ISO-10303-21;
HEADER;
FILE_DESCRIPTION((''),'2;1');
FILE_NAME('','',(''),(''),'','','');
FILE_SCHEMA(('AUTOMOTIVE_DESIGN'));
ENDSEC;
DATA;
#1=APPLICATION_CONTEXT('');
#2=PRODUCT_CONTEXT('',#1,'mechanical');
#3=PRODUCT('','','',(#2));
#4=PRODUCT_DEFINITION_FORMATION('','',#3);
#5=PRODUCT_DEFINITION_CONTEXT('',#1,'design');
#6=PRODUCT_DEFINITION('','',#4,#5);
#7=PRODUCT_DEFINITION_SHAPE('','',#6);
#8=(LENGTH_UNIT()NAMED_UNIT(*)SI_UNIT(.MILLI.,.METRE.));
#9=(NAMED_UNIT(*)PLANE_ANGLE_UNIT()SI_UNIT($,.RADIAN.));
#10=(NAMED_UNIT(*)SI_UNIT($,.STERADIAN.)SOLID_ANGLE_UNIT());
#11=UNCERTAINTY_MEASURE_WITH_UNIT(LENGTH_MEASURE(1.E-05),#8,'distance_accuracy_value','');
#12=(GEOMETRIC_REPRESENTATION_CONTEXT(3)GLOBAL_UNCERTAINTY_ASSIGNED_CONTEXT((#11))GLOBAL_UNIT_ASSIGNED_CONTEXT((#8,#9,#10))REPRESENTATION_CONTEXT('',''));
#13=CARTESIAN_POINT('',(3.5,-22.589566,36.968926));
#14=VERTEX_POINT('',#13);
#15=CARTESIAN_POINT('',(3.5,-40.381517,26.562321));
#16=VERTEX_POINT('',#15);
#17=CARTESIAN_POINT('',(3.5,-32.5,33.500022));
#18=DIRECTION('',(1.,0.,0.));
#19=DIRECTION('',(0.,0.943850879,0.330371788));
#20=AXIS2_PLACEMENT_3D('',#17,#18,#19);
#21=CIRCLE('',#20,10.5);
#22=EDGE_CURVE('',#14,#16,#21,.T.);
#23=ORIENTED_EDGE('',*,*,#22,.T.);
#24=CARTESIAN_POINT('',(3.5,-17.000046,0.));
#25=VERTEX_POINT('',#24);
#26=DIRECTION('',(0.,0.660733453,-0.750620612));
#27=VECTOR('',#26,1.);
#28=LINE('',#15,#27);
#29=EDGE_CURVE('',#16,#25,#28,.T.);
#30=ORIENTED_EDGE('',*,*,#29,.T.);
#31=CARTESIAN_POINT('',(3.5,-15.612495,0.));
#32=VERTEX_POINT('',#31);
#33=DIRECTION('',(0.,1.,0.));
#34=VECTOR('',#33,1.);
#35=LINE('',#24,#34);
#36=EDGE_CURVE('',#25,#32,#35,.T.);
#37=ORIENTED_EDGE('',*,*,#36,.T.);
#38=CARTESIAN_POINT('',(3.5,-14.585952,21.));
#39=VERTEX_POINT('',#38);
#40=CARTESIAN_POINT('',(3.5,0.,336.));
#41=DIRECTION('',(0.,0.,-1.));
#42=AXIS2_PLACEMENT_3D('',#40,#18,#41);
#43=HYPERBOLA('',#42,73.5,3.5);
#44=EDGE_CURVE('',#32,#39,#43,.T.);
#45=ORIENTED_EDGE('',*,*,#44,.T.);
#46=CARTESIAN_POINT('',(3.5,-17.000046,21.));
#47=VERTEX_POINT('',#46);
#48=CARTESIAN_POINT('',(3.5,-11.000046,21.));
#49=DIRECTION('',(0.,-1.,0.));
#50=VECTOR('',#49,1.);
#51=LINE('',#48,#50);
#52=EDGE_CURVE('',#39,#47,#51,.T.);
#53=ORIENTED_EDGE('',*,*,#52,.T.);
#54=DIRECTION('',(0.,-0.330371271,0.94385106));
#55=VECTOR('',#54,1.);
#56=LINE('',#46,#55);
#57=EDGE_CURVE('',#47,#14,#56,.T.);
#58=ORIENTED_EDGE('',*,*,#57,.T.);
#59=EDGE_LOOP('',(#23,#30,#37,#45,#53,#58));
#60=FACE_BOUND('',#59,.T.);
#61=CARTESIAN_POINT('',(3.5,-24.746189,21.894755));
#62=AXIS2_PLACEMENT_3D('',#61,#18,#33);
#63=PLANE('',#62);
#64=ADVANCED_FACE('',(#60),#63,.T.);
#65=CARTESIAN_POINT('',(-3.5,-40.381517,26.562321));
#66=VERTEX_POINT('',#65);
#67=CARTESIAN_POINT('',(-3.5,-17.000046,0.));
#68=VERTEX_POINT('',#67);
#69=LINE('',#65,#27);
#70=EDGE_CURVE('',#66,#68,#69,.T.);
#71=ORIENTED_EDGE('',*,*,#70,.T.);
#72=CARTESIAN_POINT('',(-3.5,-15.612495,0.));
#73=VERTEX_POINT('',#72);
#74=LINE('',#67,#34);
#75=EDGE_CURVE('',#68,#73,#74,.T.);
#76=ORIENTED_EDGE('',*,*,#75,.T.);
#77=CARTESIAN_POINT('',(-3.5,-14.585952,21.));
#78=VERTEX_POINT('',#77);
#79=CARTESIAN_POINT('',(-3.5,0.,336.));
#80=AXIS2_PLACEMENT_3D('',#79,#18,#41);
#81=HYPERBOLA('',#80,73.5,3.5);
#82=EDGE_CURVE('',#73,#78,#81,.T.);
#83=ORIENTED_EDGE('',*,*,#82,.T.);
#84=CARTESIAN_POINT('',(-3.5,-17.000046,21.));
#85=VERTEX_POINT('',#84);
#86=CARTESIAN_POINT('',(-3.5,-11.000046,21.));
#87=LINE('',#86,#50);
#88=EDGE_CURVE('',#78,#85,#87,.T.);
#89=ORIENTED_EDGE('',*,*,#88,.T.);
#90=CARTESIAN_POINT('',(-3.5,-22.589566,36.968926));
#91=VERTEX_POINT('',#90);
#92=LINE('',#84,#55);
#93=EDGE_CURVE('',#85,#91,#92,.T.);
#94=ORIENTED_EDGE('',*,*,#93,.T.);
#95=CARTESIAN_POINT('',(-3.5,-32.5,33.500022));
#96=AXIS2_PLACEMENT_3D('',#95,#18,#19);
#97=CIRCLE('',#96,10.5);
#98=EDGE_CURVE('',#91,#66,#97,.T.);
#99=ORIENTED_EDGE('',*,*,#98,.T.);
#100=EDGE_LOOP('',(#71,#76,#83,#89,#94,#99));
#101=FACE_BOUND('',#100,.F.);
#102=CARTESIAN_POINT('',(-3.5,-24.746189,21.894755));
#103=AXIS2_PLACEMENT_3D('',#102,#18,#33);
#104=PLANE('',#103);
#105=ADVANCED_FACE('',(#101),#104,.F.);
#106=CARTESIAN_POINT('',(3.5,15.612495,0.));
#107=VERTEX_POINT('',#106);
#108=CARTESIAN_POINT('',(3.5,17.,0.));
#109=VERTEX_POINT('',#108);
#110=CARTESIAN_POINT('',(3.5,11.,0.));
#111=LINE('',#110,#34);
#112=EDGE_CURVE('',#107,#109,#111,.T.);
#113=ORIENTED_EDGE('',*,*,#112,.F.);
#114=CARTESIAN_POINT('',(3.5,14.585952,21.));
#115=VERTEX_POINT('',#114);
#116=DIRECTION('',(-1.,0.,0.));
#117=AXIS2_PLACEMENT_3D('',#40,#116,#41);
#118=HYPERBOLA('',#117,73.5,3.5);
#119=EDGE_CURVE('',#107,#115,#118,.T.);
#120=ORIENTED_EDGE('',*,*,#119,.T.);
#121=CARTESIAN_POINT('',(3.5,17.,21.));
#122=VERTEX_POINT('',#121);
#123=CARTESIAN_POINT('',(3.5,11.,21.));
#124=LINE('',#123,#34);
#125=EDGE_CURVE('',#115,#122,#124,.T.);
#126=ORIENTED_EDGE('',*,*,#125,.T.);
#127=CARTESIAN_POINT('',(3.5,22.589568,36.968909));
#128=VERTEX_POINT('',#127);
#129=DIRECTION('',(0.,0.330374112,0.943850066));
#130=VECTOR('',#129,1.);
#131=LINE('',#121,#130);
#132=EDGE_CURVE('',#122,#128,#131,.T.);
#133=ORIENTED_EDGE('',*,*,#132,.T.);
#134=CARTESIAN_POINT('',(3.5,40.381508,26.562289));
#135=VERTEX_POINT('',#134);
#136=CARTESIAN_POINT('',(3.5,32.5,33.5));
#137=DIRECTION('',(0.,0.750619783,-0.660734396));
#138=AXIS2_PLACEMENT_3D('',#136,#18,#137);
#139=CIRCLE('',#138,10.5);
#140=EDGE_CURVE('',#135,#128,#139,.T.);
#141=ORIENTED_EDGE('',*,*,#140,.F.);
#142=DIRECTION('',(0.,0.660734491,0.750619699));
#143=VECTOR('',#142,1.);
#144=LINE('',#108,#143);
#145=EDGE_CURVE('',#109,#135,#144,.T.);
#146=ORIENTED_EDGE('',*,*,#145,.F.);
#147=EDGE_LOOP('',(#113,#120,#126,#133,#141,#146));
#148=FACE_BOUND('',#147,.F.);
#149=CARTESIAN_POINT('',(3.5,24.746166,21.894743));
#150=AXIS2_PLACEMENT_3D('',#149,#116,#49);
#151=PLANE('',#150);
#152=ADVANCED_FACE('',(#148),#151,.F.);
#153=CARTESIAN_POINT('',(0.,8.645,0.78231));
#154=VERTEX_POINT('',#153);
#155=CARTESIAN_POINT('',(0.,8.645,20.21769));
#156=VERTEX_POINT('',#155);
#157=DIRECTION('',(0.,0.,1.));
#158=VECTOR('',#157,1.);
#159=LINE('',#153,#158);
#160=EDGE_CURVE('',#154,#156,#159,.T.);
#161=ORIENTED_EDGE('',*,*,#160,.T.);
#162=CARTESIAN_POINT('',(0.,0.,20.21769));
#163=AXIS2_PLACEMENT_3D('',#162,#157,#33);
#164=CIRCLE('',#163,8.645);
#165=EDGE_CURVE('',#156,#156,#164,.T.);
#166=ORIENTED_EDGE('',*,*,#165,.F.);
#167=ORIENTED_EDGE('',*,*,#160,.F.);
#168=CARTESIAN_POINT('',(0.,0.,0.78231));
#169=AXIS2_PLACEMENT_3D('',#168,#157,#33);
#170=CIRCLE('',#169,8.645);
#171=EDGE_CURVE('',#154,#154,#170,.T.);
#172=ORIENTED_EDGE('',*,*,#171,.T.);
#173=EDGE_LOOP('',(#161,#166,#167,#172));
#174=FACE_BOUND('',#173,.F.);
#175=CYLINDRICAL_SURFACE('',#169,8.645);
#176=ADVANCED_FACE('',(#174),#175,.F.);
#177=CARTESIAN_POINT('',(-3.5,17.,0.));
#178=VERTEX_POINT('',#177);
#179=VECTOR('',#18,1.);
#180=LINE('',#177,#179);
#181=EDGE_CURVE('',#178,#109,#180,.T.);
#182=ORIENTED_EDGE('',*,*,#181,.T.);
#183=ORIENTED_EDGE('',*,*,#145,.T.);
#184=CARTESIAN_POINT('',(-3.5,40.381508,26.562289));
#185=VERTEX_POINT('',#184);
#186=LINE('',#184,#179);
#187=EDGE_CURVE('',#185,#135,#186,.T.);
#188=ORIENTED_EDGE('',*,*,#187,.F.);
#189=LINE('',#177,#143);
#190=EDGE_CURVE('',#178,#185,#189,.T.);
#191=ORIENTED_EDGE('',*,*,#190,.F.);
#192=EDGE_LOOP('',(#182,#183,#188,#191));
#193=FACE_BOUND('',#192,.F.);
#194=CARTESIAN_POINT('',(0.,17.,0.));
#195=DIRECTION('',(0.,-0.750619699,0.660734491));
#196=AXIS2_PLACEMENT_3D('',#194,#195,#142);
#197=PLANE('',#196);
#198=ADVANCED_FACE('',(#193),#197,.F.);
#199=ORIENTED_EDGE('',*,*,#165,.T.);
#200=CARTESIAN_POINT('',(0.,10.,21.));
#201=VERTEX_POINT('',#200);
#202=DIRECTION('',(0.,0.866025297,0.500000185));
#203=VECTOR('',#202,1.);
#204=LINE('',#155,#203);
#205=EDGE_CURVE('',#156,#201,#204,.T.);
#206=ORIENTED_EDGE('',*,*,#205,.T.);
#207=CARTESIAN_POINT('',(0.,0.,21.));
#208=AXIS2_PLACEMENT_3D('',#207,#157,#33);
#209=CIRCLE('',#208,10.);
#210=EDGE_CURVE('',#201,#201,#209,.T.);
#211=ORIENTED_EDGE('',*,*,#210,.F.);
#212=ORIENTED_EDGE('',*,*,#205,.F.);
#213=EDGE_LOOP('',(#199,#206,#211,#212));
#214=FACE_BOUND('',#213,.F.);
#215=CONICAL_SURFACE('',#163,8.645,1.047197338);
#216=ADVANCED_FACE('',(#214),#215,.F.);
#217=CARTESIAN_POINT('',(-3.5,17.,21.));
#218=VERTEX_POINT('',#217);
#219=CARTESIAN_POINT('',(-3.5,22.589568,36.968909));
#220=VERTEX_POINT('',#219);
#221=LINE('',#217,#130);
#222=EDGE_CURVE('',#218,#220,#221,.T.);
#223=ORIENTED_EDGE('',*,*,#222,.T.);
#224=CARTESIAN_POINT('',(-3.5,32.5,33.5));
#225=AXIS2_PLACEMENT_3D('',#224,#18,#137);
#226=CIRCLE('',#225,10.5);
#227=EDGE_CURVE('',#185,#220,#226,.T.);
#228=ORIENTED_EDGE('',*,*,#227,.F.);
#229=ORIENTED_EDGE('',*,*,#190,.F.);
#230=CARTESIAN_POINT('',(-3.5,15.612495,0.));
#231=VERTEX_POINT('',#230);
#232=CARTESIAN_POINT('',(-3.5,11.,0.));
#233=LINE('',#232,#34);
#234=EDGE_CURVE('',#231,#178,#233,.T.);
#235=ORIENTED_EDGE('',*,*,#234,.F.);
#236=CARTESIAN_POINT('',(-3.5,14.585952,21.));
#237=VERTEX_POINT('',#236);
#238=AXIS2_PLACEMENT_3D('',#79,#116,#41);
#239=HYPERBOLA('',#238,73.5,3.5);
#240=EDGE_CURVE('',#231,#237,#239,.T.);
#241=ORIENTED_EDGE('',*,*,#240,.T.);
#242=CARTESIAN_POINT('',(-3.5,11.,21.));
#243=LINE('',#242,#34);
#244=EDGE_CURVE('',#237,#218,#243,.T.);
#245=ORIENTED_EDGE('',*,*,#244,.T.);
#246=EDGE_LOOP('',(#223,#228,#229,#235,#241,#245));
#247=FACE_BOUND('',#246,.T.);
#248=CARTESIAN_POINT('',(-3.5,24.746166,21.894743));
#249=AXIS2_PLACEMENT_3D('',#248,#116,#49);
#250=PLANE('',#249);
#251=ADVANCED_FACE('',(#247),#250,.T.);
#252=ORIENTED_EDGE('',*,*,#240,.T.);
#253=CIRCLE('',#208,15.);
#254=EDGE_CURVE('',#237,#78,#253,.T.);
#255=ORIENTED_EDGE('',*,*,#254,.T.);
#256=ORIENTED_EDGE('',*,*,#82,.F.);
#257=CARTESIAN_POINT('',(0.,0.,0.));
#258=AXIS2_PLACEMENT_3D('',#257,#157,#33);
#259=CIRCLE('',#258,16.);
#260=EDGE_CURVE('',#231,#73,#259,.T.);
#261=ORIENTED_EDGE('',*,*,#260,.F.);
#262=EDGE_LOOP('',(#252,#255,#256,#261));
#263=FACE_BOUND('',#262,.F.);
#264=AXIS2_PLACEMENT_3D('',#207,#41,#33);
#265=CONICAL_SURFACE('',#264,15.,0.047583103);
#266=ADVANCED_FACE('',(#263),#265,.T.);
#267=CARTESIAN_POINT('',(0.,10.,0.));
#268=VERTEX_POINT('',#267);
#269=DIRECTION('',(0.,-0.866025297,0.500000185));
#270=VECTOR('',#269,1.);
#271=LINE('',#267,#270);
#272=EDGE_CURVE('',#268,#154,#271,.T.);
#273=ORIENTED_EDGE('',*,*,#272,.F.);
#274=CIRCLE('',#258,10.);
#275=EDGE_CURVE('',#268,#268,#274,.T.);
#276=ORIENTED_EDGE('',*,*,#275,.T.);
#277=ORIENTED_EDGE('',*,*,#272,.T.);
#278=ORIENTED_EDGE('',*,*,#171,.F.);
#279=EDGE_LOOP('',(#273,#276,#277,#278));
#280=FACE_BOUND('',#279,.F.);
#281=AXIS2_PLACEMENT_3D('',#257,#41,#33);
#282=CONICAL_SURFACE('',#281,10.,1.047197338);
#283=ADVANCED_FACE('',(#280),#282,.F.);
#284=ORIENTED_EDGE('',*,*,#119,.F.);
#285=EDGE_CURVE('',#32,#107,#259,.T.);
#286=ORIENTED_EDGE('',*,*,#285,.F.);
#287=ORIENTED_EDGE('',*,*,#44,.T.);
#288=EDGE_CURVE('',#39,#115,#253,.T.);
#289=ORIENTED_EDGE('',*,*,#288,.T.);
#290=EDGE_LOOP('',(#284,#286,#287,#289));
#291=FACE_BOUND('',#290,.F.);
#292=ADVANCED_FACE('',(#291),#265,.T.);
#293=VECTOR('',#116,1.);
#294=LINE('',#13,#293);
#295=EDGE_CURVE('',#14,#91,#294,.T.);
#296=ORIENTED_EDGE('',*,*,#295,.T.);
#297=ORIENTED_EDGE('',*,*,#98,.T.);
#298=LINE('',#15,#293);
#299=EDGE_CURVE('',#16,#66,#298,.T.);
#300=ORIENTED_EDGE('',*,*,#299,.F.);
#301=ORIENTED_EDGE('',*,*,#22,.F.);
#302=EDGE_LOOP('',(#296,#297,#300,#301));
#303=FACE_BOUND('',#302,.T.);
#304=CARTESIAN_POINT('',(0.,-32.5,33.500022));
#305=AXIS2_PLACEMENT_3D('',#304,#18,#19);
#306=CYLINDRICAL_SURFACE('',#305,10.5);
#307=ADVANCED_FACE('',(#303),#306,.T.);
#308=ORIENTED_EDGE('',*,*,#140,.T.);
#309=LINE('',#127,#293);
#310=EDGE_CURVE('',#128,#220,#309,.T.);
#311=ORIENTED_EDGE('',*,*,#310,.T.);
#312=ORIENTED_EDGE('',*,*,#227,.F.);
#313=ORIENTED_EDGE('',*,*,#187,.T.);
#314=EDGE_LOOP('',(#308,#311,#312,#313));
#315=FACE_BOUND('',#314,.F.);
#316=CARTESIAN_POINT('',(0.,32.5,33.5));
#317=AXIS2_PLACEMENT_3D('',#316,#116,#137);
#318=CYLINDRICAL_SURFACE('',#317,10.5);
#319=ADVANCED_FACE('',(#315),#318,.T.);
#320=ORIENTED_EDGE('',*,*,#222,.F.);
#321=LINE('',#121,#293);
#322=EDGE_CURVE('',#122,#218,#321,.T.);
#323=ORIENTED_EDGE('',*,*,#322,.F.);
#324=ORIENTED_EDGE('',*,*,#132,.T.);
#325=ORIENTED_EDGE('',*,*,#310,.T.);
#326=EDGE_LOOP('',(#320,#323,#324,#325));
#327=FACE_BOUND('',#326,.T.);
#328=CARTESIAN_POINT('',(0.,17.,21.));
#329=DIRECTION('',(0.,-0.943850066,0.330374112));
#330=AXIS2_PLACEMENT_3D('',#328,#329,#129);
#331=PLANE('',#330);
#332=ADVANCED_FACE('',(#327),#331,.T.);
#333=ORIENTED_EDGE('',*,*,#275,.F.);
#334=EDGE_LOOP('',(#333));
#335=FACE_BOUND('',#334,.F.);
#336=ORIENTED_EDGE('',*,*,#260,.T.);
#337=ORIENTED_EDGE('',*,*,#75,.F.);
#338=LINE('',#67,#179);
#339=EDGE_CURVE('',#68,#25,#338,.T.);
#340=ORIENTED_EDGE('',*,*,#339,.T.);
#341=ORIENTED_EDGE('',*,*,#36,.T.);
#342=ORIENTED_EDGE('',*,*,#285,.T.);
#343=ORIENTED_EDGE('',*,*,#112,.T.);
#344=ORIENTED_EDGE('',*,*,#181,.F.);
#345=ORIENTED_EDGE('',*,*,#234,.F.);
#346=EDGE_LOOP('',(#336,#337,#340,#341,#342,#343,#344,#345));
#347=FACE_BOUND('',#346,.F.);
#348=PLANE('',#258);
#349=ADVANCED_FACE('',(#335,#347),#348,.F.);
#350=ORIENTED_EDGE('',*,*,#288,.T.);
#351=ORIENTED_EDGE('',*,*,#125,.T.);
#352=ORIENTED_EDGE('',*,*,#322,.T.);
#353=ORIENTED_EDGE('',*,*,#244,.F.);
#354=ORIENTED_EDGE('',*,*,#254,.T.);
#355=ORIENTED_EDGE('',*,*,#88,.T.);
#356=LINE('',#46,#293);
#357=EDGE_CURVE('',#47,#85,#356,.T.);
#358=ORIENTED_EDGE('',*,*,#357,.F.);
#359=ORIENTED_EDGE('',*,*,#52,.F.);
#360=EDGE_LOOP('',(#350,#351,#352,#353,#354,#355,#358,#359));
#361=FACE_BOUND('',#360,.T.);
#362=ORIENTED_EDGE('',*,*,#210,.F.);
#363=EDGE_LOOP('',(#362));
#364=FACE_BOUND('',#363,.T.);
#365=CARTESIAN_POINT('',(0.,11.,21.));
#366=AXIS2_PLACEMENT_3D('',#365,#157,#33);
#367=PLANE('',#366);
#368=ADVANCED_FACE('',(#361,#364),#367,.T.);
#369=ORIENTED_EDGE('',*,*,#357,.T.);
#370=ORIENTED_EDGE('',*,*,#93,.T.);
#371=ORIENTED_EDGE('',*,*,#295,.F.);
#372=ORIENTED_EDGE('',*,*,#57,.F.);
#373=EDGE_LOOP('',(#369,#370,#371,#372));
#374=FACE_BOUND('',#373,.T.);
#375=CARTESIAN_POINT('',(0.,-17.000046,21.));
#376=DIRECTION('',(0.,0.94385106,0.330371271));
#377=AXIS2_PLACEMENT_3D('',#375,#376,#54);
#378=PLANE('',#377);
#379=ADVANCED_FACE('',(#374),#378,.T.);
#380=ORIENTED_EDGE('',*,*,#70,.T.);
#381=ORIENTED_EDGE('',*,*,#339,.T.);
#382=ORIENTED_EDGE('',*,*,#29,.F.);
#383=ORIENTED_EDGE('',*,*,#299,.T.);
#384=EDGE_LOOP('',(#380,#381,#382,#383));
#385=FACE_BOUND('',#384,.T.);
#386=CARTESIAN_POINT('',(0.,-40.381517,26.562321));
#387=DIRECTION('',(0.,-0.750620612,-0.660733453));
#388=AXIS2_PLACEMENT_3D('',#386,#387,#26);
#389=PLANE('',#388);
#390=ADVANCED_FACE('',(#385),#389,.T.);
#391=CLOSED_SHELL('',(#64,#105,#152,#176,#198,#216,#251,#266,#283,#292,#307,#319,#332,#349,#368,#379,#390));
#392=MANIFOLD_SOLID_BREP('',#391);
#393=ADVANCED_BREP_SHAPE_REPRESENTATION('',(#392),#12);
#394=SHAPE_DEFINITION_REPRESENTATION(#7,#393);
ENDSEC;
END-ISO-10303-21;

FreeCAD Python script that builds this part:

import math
import FreeCAD as App
import Part
import Sketcher
Q = App.Units.Quantity

doc = App.newDocument("Part")
body = doc.addObject("PartDesign::Body", "Body")
body.AllowCompound = True

sketch1 = doc.addObject("Sketcher::SketchObject", "Sketch")
body.addObject(sketch1)
sketch1.AttachmentSupport = (doc.YZ_Plane, [""])
sketch1.MapMode = "FlatFace"
sketch1.addGeometry([
    Part.LineSegment(App.Vector(11, 21, 0), App.Vector(11, 0, 0)),
    Part.LineSegment(App.Vector(11, 0, 0), App.Vector(17, 0, 0)),
    Part.LineSegment(App.Vector(17, 0, 0), App.Vector(40.381508, 26.562289, 0)),
    Part.ArcOfCircle(Part.Circle(App.Vector(32.5, 33.5, 0), App.Vector(0, 0, 1), 10.5), math.radians(-41.355906), math.radians(160.708627)),
    Part.LineSegment(App.Vector(22.589568, 36.968909, 0), App.Vector(17, 21, 0)),
    Part.LineSegment(App.Vector(17, 21, 0), App.Vector(11, 21, 0)),
    Part.LineSegment(App.Vector(-40.381517, 26.562321, 0), App.Vector(-17.000046, 0, 0)),
    Part.LineSegment(App.Vector(-17.000046, 0, 0), App.Vector(-11.000046, 0, 0)),
    Part.LineSegment(App.Vector(-11.000046, 0, 0), App.Vector(-11.000046, 21, 0)),
    Part.LineSegment(App.Vector(-11.000046, 21, 0), App.Vector(-17.000046, 21, 0)),
    Part.LineSegment(App.Vector(-17.000046, 21, 0), App.Vector(-22.589566, 36.968926, 0)),
    Part.ArcOfCircle(Part.Circle(App.Vector(-32.5, 33.500022, 0), App.Vector(0, 0, 1), 10.5), math.radians(19.291343), math.radians(221.355833)),
], False)
sketch1.addConstraint([
    Sketcher.Constraint("Coincident", 0, 2, 1, 1),
    Sketcher.Constraint("Coincident", 1, 2, 2, 1),
    Sketcher.Constraint("Coincident", 2, 2, 3, 1),
    Sketcher.Constraint("Coincident", 3, 2, 4, 1),
    Sketcher.Constraint("Coincident", 4, 2, 5, 1),
    Sketcher.Constraint("Coincident", 5, 2, 0, 1),
    Sketcher.Constraint("Coincident", 6, 2, 7, 1),
    Sketcher.Constraint("Coincident", 7, 2, 8, 1),
    Sketcher.Constraint("Coincident", 8, 2, 9, 1),
    Sketcher.Constraint("Coincident", 9, 2, 10, 1),
    Sketcher.Constraint("Coincident", 10, 2, 11, 1),
    Sketcher.Constraint("Coincident", 11, 2, 6, 1),
    Sketcher.Constraint("Vertical", 0),
    Sketcher.Constraint("Horizontal", 1),
    Sketcher.Constraint("Horizontal", 5),
    Sketcher.Constraint("Horizontal", 7),
    Sketcher.Constraint("Vertical", 8),
    Sketcher.Constraint("Horizontal", 9),
    Sketcher.Constraint("PointOnObject", 0, 2, -1),
    Sketcher.Constraint("PointOnObject", 6, 2, -1),
    Sketcher.Constraint("Radius", 3, 10.5),
    Sketcher.Constraint("Radius", 11, 10.5),
    Sketcher.Constraint("DistanceX", 1, 1, 1, 2, 6.0),
    Sketcher.Constraint("DistanceX", 5, 2, 5, 1, 6.0),
    Sketcher.Constraint("DistanceX", 7, 1, 7, 2, 6.0),
    Sketcher.Constraint("DistanceX", 9, 2, 9, 1, 6.0),
    Sketcher.Constraint("DistanceY", 0, 2, 0, 1, 21.0),
    Sketcher.Constraint("DistanceY", 8, 1, 8, 2, 21.0),
    Sketcher.Constraint("DistanceX", -1, 1, 0, 2, 11.0),
    Sketcher.Constraint("DistanceX", 11, 3, 3, 3, 65.000001),
    Sketcher.Constraint("DistanceX", -1, 1, 3, 3, 32.5),
    Sketcher.Constraint("DistanceY", -1, 1, 3, 3, 33.5),
    Sketcher.Constraint("DistanceY", 11, 2, 11, 3, 6.937701),
    Sketcher.Constraint("DistanceY", -1, 1, 2, 2, 26.562289),
    Sketcher.Constraint("DistanceX", -1, 1, 3, 2, 22.589568),
    Sketcher.Constraint("DistanceY", -1, 1, 11, 2, 26.562321),
    Sketcher.Constraint("DistanceX", 10, 2, 9, 2, 5.58952),
    Sketcher.Constraint("DistanceX", 11, 2, 10, 2, 17.791951),
])
pad1 = doc.addObject("PartDesign::Pad", "Pad")
body.addObject(pad1)
pad1.Profile = sketch1
pad1.Length = 7
pad1.Midplane = True
body2 = doc.addObject("PartDesign::Body", "Body001")

sketch2 = doc.addObject("Sketcher::SketchObject", "Sketch001")
body2.addObject(sketch2)
sketch2.AttachmentSupport = (doc.getObject("YZ_Plane001"), [""])
sketch2.MapMode = "FlatFace"
sketch2.addGeometry([
    Part.LineSegment(App.Vector(8.6, 0.8, 0), App.Vector(10, 0, 0)),
    Part.LineSegment(App.Vector(10, 0, 0), App.Vector(16, 0, 0)),
    Part.LineSegment(App.Vector(16, 0, 0), App.Vector(15, 21, 0)),
    Part.LineSegment(App.Vector(15, 21, 0), App.Vector(10, 21, 0)),
    Part.LineSegment(App.Vector(10, 21, 0), App.Vector(8.6, 20.2, 0)),
    Part.LineSegment(App.Vector(8.6, 20.2, 0), App.Vector(8.6, 0.8, 0)),
], False)
sketch2.addConstraint([
    Sketcher.Constraint("Coincident", 0, 2, 1, 1),
    Sketcher.Constraint("Coincident", 1, 2, 2, 1),
    Sketcher.Constraint("Coincident", 2, 2, 3, 1),
    Sketcher.Constraint("Coincident", 3, 2, 4, 1),
    Sketcher.Constraint("Coincident", 4, 2, 5, 1),
    Sketcher.Constraint("Coincident", 5, 2, 0, 1),
    Sketcher.Constraint("Horizontal", 1),
    Sketcher.Constraint("Horizontal", 3),
    Sketcher.Constraint("Vertical", 5),
    Sketcher.Constraint("PointOnObject", 0, 2, -1),
    Sketcher.Constraint("Vertical", 0, 2, 3, 2),
    Sketcher.Constraint("Equal", 0, 4),
    Sketcher.Constraint("DistanceX", 1, 1, 1, 2, 6.0),
    Sketcher.Constraint("DistanceX", 3, 2, 3, 1, 5.0),
    Sketcher.Constraint("Angle", 0, Q("-30.000012 deg")),
    Sketcher.Constraint("DistanceX", -1, 1, 0, 2, 10.0),
    Sketcher.Constraint("DistanceY", -1, 1, 2, 2, 21.0),
    Sketcher.Constraint("DistanceX", -1, 1, 4, 2, 8.645),
])
revolution = doc.addObject("PartDesign::Revolution", "Revolution")
body2.addObject(revolution)
revolution.Profile = sketch2
revolution.ReferenceAxis = (sketch2, ["V_Axis"])
revolution.Angle = 360
doc.recompute()

boolean = doc.addObject("PartDesign::Boolean", "Boolean")
body2.addObject(boolean)
boolean.Type = "Fuse"
boolean.addObjects([body])

doc.recompute()
